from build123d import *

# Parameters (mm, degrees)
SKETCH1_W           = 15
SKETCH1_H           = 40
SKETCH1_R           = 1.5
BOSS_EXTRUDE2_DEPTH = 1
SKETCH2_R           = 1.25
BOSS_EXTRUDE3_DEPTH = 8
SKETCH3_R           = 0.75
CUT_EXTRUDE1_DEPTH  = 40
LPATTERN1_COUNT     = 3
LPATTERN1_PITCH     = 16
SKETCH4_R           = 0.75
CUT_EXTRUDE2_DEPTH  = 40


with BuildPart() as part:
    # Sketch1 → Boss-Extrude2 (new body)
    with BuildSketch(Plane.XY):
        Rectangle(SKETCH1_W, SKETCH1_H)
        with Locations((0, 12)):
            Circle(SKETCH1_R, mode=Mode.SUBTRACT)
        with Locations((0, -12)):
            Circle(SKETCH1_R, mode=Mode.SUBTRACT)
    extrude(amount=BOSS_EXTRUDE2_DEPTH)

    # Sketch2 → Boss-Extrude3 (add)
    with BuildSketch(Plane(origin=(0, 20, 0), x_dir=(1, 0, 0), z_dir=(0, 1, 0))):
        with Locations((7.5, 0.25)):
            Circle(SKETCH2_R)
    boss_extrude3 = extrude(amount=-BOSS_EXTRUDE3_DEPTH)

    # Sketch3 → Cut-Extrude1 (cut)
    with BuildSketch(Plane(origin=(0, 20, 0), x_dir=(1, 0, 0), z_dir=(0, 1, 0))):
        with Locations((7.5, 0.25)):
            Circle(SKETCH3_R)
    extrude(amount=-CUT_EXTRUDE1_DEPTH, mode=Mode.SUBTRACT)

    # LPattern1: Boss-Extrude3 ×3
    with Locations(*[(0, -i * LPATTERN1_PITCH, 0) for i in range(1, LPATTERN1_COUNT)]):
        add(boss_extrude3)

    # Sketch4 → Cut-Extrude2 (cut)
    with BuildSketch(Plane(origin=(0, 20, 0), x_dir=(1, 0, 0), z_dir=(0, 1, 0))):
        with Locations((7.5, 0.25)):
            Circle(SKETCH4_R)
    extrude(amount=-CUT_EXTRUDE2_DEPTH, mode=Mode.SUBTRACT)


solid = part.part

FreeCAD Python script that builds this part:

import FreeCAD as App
import Part
import Sketcher

V = App.Vector
Q = App.Units.Quantity

doc = App.newDocument("Part")
body = doc.addObject("PartDesign::Body", "Body")

# Sketch on XY plane
sketch1 = doc.addObject("Sketcher::SketchObject", "Sketch")
body.addObject(sketch1)
sketch1.AttachmentSupport = (doc.XY_Plane, [""])
sketch1.MapMode = "FlatFace"
sketch1.addGeometry(Part.LineSegment(V(-7.5, 20, 0), V(-7.5, -20, 0)), False)
sketch1.addGeometry(Part.LineSegment(V(-7.5, -20, 0), V(7.5, -20, 0)), False)
sketch1.addGeometry(Part.LineSegment(V(7.5, -20, 0), V(7.5, 20, 0)), False)
sketch1.addGeometry(Part.LineSegment(V(7.5, 20, 0), V(-7.5, 20, 0)), False)
sketch1.addGeometry(Part.Circle(V(0, -12, 0), V(0, 0, 1), 1.5), False)
sketch1.addGeometry(Part.Circle(V(0, 12, 0), V(0, 0, 1), 1.5), False)
sketch1.addConstraint(Sketcher.Constraint("Coincident", 0, 2, 1, 1))
sketch1.addConstraint(Sketcher.Constraint("Coincident", 1, 2, 2, 1))
sketch1.addConstraint(Sketcher.Constraint("Coincident", 2, 2, 3, 1))
sketch1.addConstraint(Sketcher.Constraint("Coincident", 3, 2, 0, 1))
sketch1.addConstraint(Sketcher.Constraint("Vertical", 0))
sketch1.addConstraint(Sketcher.Constraint("Horizontal", 1))
sketch1.addConstraint(Sketcher.Constraint("Vertical", 2))
sketch1.addConstraint(Sketcher.Constraint("Horizontal", 3))
sketch1.addConstraint(Sketcher.Constraint("Equal", 4, 5))
sketch1.addConstraint(Sketcher.Constraint("Symmetric", 4, 3, 5, 3, -1, 1))
sketch1.addConstraint(Sketcher.Constraint("Symmetric", 0, 2, 2, 2, -1, 1))
sketch1.addConstraint(Sketcher.Constraint("PointOnObject", 4, 3, -2))
sketch1.addConstraint(Sketcher.Constraint("Diameter", 4, Q("3 mm")))
sketch1.addConstraint(Sketcher.Constraint("DistanceX", 1, 1, 1, 2, Q("15 mm")))
sketch1.addConstraint(Sketcher.Constraint("DistanceY", 0, 2, 0, 1, Q("40 mm")))
sketch1.addConstraint(Sketcher.Constraint("DistanceY", 4, 3, -1, 1, Q("12 mm")))
pad1 = doc.addObject("PartDesign::Pad", "Pad")
body.addObject(pad1)
pad1.Profile = sketch1
pad1.Length = 1

# Sketch on XZ plane
sketch2 = doc.addObject("Sketcher::SketchObject", "Sketch001")
body.addObject(sketch2)
sketch2.AttachmentSupport = (doc.XZ_Plane, [""])
sketch2.MapMode = "FlatFace"
sketch2.AttachmentOffset = App.Placement(V(0, 0, -20), App.Rotation())
sketch2.addGeometry(Part.Circle(V(7.5, -0.2, 0), V(0, 0, 1), 1.2), False)
sketch2.addConstraint(Sketcher.Constraint("Diameter", 0, Q("2.5 mm")))
sketch2.addConstraint(Sketcher.Constraint("DistanceX", -1, 1, 0, 3, Q("7.5 mm")))
sketch2.addConstraint(Sketcher.Constraint("DistanceY", 0, 3, -1, 1, Q("0.25 mm")))
pad2 = doc.addObject("PartDesign::Pad", "Pad001")
body.addObject(pad2)
pad2.Profile = sketch2
pad2.Length = 8

# Sketch on XZ plane
sketch3 = doc.addObject("Sketcher::SketchObject", "Sketch002")
body.addObject(sketch3)
sketch3.AttachmentSupport = (doc.XZ_Plane, [""])
sketch3.MapMode = "FlatFace"
sketch3.AttachmentOffset = App.Placement(V(0, 0, -20), App.Rotation())
sketch3.addGeometry(Part.Circle(V(7.5, -0.2, 0), V(0, 0, 1), 0.8), False)
sketch3.addConstraint(Sketcher.Constraint("Diameter", 0, Q("1.5 mm")))
sketch3.addConstraint(Sketcher.Constraint("DistanceX", -1, 1, 0, 3, Q("7.5 mm")))
sketch3.addConstraint(Sketcher.Constraint("DistanceY", 0, 3, -1, 1, Q("0.25 mm")))
pocket1 = doc.addObject("PartDesign::Pocket", "Pocket")
body.addObject(pocket1)
pocket1.Profile = sketch3
pocket1.Length = 40
pocket1.Reversed = True
doc.recompute()

linearpattern = doc.addObject("PartDesign::LinearPattern", "LinearPattern")
body.addObject(linearpattern)
linearpattern.Originals = [pad2]
linearpattern.Direction = (doc.Y_Axis, [""])
linearpattern.Mode = "offset"
linearpattern.Offset = 16
linearpattern.Occurrences = 3
linearpattern.Reversed = True
body.Tip = linearpattern

# Sketch on XZ plane
sketch4 = doc.addObject("Sketcher::SketchObject", "Sketch003")
body.addObject(sketch4)
sketch4.AttachmentSupport = (doc.XZ_Plane, [""])
sketch4.MapMode = "FlatFace"
sketch4.AttachmentOffset = App.Placement(V(0, 0, -20), App.Rotation())
sketch4.addGeometry(Part.Circle(V(7.5, -0.2, 0), V(0, 0, 1), 0.8), False)
sketch4.addConstraint(Sketcher.Constraint("Diameter", 0, Q("1.5 mm")))
sketch4.addConstraint(Sketcher.Constraint("DistanceX", -1, 1, 0, 3, Q("7.5 mm")))
sketch4.addConstraint(Sketcher.Constraint("DistanceY", 0, 3, -1, 1, Q("0.25 mm")))
pocket2 = doc.addObject("PartDesign::Pocket", "Pocket001")
body.addObject(pocket2)
pocket2.Profile = sketch4
pocket2.Length = 40
pocket2.Reversed = True

doc.recompute()
